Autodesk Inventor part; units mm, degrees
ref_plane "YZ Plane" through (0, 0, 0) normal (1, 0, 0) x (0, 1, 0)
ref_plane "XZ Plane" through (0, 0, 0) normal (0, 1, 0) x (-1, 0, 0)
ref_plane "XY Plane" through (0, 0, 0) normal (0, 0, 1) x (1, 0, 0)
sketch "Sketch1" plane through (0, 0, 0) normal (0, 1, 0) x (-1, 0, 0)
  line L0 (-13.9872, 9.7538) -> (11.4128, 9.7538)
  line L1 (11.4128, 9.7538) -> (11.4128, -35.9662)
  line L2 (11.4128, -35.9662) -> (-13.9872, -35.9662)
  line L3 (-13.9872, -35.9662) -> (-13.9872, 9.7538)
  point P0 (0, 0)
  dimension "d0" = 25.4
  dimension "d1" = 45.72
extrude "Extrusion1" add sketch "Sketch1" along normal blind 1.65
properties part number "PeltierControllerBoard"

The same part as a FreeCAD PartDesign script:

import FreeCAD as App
import Part
import Sketcher

V = App.Vector
Q = App.Units.Quantity


def add_polygon(sketch, points):
    """Adds a closed chain of lines whose ends are joined by coincident constraints."""
    first, n = sketch.GeometryCount, len(points)
    for a, b in zip(points, points[1:] + points[:1]):
        sketch.addGeometry(Part.LineSegment(App.Vector(*a, 0), App.Vector(*b, 0)), False)
    for i in range(n):
        sketch.addConstraint(Sketcher.Constraint("Coincident", first + i, 2, first + (i + 1) % n, 1))

doc = App.newDocument("Part")
params = doc.addObject("Spreadsheet::Sheet", "Params")
for row, (alias, value) in enumerate([
    ("sketch1_width", "1 in"),
    ("sketch1_height", "1.8 in"),
    ("pad1_length", "1.65 mm"),
], start=1):
    params.set(f"A{row}", alias)
    params.set(f"B{row}", "=" + value)
    params.setAlias(f"B{row}", alias)

body = doc.addObject("PartDesign::Body", "Body")

# Sketch on XZ plane
sketch1 = body.newObject("Sketcher::SketchObject", "Sketch")
sketch1.AttachmentSupport = (doc.getObject("XZ_Plane"), [""])
sketch1.MapMode = "FlatFace"
add_polygon(sketch1, [(-11, 10), (14, 10), (14, -36), (-11, -36)])  # lines 0-3
sketch1.addConstraint([
    Sketcher.Constraint("Horizontal", 0),
    Sketcher.Constraint("Vertical", 1),
    Sketcher.Constraint("Horizontal", 2),
    Sketcher.Constraint("Vertical", 3),
    Sketcher.Constraint("DistanceX", 0, 1, 0, 2, Q("1 in")),
    Sketcher.Constraint("DistanceY", 1, 2, 1, 1, Q("1.8 in")),
    Sketcher.Constraint("DistanceY", -1, 1, 0, 2, Q("0.384 in")),
    Sketcher.Constraint("DistanceX", -1, 1, 0, 2, Q("13.9872 mm")),
])
sketch1.setExpression("Constraints[8]", "Params.sketch1_width")
sketch1.setExpression("Constraints[9]", "Params.sketch1_height")
pad1 = body.newObject("PartDesign::Pad", "Pad")
pad1.Profile = sketch1
pad1.setExpression("Length", "Params.pad1_length")
pad1.Reversed = True

doc.recompute()
